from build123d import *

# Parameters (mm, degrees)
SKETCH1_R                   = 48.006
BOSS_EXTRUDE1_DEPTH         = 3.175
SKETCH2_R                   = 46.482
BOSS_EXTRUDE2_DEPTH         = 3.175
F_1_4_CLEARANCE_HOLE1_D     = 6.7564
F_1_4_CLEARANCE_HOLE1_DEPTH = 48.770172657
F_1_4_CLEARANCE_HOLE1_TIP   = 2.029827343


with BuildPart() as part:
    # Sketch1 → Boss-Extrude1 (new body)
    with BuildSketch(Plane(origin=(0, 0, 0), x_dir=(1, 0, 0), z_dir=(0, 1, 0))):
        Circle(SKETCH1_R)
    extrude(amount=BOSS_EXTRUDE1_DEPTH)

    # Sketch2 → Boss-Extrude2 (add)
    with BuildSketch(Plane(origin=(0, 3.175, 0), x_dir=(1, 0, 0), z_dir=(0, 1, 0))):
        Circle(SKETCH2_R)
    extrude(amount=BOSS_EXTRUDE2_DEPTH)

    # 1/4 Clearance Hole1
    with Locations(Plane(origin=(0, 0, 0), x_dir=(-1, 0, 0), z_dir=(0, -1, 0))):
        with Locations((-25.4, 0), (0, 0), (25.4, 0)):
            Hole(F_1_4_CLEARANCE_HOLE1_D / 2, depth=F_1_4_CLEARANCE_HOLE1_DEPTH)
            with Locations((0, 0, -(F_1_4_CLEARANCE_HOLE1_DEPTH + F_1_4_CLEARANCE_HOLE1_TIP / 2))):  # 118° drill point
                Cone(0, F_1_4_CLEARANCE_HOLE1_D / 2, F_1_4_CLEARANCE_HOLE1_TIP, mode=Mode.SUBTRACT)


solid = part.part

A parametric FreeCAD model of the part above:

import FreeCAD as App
import Part
import Sketcher
from FreeCAD import Vector
Q = App.Units.Quantity

doc = App.newDocument("Part")
body = doc.addObject("PartDesign::Body", "Body")

sketch1 = doc.addObject("Sketcher::SketchObject", "Sketch")
body.addObject(sketch1)
sketch1.AttachmentSupport = (doc.XZ_Plane, [""])
sketch1.MapMode = "FlatFace"
sketch1.addGeometry(Part.Circle(Vector(0, 0, 0), Vector(0, 0, 1), 48.006), False)
sketch1.addConstraint([
    Sketcher.Constraint("Coincident", 0, 3, -1, 1),
    Sketcher.Constraint("Diameter", 0, Q("3.78 in")),
])
pad1 = doc.addObject("PartDesign::Pad", "Pad")
body.addObject(pad1)
pad1.Profile = sketch1
pad1.Length = Q("0.125 in")
pad1.Reversed = True

sketch2 = doc.addObject("Sketcher::SketchObject", "Sketch001")
body.addObject(sketch2)
sketch2.AttachmentSupport = (doc.XZ_Plane, [""])
sketch2.MapMode = "FlatFace"
sketch2.AttachmentOffset = App.Placement(Vector(0, 0, -0.125 * 25.4), App.Rotation())
sketch2.addGeometry(Part.Circle(Vector(0, 0, 0), Vector(0, 0, 1), 46.482), False)
sketch2.addConstraint([
    Sketcher.Constraint("Coincident", 0, 3, -1, 1),
    Sketcher.Constraint("Diameter", 0, Q("3.66 in")),
])
pad2 = doc.addObject("PartDesign::Pad", "Pad001")
body.addObject(pad2)
pad2.Profile = sketch2
pad2.Length = Q("0.125 in")
pad2.Reversed = True

sketch3 = doc.addObject("Sketcher::SketchObject", "Sketch002")
body.addObject(sketch3)
sketch3.AttachmentSupport = (doc.XZ_Plane, [""])
sketch3.MapMode = "FlatFace"
sketch3.addGeometry([
    Part.Circle(Vector(25.4, 0, 0), Vector(0, 0, 1), 3.3782),
    Part.Circle(Vector(0, 0, 0), Vector(0, 0, 1), 3.3782),
    Part.Circle(Vector(-25.4, 0, 0), Vector(0, 0, 1), 3.3782),
], False)
sketch3.addConstraint([
    Sketcher.Constraint("Coincident", 1, 3, -1, 1),
    Sketcher.Constraint("Equal", 0, 1),
    Sketcher.Constraint("Equal", 1, 2),
    Sketcher.Constraint("Symmetric", 0, 3, 2, 3, -1, 1),
    Sketcher.Constraint("PointOnObject", 0, 3, -1),
    Sketcher.Constraint("Diameter", 0, Q("0.266 in")),
    Sketcher.Constraint("DistanceX", -1, 1, 0, 3, Q("1 in")),
])
doc.recompute()
hole = doc.addObject("PartDesign::Hole", "Hole")
body.addObject(hole)
hole.Profile = sketch3
hole.ThreadType = "None"
hole.Diameter = Q("0.266 in")
hole.DepthType = "Dimension"
hole.Depth = 48.770173
hole.DrillPoint = "Angled"
hole.DrillPointAngle = 118

doc.recompute()
